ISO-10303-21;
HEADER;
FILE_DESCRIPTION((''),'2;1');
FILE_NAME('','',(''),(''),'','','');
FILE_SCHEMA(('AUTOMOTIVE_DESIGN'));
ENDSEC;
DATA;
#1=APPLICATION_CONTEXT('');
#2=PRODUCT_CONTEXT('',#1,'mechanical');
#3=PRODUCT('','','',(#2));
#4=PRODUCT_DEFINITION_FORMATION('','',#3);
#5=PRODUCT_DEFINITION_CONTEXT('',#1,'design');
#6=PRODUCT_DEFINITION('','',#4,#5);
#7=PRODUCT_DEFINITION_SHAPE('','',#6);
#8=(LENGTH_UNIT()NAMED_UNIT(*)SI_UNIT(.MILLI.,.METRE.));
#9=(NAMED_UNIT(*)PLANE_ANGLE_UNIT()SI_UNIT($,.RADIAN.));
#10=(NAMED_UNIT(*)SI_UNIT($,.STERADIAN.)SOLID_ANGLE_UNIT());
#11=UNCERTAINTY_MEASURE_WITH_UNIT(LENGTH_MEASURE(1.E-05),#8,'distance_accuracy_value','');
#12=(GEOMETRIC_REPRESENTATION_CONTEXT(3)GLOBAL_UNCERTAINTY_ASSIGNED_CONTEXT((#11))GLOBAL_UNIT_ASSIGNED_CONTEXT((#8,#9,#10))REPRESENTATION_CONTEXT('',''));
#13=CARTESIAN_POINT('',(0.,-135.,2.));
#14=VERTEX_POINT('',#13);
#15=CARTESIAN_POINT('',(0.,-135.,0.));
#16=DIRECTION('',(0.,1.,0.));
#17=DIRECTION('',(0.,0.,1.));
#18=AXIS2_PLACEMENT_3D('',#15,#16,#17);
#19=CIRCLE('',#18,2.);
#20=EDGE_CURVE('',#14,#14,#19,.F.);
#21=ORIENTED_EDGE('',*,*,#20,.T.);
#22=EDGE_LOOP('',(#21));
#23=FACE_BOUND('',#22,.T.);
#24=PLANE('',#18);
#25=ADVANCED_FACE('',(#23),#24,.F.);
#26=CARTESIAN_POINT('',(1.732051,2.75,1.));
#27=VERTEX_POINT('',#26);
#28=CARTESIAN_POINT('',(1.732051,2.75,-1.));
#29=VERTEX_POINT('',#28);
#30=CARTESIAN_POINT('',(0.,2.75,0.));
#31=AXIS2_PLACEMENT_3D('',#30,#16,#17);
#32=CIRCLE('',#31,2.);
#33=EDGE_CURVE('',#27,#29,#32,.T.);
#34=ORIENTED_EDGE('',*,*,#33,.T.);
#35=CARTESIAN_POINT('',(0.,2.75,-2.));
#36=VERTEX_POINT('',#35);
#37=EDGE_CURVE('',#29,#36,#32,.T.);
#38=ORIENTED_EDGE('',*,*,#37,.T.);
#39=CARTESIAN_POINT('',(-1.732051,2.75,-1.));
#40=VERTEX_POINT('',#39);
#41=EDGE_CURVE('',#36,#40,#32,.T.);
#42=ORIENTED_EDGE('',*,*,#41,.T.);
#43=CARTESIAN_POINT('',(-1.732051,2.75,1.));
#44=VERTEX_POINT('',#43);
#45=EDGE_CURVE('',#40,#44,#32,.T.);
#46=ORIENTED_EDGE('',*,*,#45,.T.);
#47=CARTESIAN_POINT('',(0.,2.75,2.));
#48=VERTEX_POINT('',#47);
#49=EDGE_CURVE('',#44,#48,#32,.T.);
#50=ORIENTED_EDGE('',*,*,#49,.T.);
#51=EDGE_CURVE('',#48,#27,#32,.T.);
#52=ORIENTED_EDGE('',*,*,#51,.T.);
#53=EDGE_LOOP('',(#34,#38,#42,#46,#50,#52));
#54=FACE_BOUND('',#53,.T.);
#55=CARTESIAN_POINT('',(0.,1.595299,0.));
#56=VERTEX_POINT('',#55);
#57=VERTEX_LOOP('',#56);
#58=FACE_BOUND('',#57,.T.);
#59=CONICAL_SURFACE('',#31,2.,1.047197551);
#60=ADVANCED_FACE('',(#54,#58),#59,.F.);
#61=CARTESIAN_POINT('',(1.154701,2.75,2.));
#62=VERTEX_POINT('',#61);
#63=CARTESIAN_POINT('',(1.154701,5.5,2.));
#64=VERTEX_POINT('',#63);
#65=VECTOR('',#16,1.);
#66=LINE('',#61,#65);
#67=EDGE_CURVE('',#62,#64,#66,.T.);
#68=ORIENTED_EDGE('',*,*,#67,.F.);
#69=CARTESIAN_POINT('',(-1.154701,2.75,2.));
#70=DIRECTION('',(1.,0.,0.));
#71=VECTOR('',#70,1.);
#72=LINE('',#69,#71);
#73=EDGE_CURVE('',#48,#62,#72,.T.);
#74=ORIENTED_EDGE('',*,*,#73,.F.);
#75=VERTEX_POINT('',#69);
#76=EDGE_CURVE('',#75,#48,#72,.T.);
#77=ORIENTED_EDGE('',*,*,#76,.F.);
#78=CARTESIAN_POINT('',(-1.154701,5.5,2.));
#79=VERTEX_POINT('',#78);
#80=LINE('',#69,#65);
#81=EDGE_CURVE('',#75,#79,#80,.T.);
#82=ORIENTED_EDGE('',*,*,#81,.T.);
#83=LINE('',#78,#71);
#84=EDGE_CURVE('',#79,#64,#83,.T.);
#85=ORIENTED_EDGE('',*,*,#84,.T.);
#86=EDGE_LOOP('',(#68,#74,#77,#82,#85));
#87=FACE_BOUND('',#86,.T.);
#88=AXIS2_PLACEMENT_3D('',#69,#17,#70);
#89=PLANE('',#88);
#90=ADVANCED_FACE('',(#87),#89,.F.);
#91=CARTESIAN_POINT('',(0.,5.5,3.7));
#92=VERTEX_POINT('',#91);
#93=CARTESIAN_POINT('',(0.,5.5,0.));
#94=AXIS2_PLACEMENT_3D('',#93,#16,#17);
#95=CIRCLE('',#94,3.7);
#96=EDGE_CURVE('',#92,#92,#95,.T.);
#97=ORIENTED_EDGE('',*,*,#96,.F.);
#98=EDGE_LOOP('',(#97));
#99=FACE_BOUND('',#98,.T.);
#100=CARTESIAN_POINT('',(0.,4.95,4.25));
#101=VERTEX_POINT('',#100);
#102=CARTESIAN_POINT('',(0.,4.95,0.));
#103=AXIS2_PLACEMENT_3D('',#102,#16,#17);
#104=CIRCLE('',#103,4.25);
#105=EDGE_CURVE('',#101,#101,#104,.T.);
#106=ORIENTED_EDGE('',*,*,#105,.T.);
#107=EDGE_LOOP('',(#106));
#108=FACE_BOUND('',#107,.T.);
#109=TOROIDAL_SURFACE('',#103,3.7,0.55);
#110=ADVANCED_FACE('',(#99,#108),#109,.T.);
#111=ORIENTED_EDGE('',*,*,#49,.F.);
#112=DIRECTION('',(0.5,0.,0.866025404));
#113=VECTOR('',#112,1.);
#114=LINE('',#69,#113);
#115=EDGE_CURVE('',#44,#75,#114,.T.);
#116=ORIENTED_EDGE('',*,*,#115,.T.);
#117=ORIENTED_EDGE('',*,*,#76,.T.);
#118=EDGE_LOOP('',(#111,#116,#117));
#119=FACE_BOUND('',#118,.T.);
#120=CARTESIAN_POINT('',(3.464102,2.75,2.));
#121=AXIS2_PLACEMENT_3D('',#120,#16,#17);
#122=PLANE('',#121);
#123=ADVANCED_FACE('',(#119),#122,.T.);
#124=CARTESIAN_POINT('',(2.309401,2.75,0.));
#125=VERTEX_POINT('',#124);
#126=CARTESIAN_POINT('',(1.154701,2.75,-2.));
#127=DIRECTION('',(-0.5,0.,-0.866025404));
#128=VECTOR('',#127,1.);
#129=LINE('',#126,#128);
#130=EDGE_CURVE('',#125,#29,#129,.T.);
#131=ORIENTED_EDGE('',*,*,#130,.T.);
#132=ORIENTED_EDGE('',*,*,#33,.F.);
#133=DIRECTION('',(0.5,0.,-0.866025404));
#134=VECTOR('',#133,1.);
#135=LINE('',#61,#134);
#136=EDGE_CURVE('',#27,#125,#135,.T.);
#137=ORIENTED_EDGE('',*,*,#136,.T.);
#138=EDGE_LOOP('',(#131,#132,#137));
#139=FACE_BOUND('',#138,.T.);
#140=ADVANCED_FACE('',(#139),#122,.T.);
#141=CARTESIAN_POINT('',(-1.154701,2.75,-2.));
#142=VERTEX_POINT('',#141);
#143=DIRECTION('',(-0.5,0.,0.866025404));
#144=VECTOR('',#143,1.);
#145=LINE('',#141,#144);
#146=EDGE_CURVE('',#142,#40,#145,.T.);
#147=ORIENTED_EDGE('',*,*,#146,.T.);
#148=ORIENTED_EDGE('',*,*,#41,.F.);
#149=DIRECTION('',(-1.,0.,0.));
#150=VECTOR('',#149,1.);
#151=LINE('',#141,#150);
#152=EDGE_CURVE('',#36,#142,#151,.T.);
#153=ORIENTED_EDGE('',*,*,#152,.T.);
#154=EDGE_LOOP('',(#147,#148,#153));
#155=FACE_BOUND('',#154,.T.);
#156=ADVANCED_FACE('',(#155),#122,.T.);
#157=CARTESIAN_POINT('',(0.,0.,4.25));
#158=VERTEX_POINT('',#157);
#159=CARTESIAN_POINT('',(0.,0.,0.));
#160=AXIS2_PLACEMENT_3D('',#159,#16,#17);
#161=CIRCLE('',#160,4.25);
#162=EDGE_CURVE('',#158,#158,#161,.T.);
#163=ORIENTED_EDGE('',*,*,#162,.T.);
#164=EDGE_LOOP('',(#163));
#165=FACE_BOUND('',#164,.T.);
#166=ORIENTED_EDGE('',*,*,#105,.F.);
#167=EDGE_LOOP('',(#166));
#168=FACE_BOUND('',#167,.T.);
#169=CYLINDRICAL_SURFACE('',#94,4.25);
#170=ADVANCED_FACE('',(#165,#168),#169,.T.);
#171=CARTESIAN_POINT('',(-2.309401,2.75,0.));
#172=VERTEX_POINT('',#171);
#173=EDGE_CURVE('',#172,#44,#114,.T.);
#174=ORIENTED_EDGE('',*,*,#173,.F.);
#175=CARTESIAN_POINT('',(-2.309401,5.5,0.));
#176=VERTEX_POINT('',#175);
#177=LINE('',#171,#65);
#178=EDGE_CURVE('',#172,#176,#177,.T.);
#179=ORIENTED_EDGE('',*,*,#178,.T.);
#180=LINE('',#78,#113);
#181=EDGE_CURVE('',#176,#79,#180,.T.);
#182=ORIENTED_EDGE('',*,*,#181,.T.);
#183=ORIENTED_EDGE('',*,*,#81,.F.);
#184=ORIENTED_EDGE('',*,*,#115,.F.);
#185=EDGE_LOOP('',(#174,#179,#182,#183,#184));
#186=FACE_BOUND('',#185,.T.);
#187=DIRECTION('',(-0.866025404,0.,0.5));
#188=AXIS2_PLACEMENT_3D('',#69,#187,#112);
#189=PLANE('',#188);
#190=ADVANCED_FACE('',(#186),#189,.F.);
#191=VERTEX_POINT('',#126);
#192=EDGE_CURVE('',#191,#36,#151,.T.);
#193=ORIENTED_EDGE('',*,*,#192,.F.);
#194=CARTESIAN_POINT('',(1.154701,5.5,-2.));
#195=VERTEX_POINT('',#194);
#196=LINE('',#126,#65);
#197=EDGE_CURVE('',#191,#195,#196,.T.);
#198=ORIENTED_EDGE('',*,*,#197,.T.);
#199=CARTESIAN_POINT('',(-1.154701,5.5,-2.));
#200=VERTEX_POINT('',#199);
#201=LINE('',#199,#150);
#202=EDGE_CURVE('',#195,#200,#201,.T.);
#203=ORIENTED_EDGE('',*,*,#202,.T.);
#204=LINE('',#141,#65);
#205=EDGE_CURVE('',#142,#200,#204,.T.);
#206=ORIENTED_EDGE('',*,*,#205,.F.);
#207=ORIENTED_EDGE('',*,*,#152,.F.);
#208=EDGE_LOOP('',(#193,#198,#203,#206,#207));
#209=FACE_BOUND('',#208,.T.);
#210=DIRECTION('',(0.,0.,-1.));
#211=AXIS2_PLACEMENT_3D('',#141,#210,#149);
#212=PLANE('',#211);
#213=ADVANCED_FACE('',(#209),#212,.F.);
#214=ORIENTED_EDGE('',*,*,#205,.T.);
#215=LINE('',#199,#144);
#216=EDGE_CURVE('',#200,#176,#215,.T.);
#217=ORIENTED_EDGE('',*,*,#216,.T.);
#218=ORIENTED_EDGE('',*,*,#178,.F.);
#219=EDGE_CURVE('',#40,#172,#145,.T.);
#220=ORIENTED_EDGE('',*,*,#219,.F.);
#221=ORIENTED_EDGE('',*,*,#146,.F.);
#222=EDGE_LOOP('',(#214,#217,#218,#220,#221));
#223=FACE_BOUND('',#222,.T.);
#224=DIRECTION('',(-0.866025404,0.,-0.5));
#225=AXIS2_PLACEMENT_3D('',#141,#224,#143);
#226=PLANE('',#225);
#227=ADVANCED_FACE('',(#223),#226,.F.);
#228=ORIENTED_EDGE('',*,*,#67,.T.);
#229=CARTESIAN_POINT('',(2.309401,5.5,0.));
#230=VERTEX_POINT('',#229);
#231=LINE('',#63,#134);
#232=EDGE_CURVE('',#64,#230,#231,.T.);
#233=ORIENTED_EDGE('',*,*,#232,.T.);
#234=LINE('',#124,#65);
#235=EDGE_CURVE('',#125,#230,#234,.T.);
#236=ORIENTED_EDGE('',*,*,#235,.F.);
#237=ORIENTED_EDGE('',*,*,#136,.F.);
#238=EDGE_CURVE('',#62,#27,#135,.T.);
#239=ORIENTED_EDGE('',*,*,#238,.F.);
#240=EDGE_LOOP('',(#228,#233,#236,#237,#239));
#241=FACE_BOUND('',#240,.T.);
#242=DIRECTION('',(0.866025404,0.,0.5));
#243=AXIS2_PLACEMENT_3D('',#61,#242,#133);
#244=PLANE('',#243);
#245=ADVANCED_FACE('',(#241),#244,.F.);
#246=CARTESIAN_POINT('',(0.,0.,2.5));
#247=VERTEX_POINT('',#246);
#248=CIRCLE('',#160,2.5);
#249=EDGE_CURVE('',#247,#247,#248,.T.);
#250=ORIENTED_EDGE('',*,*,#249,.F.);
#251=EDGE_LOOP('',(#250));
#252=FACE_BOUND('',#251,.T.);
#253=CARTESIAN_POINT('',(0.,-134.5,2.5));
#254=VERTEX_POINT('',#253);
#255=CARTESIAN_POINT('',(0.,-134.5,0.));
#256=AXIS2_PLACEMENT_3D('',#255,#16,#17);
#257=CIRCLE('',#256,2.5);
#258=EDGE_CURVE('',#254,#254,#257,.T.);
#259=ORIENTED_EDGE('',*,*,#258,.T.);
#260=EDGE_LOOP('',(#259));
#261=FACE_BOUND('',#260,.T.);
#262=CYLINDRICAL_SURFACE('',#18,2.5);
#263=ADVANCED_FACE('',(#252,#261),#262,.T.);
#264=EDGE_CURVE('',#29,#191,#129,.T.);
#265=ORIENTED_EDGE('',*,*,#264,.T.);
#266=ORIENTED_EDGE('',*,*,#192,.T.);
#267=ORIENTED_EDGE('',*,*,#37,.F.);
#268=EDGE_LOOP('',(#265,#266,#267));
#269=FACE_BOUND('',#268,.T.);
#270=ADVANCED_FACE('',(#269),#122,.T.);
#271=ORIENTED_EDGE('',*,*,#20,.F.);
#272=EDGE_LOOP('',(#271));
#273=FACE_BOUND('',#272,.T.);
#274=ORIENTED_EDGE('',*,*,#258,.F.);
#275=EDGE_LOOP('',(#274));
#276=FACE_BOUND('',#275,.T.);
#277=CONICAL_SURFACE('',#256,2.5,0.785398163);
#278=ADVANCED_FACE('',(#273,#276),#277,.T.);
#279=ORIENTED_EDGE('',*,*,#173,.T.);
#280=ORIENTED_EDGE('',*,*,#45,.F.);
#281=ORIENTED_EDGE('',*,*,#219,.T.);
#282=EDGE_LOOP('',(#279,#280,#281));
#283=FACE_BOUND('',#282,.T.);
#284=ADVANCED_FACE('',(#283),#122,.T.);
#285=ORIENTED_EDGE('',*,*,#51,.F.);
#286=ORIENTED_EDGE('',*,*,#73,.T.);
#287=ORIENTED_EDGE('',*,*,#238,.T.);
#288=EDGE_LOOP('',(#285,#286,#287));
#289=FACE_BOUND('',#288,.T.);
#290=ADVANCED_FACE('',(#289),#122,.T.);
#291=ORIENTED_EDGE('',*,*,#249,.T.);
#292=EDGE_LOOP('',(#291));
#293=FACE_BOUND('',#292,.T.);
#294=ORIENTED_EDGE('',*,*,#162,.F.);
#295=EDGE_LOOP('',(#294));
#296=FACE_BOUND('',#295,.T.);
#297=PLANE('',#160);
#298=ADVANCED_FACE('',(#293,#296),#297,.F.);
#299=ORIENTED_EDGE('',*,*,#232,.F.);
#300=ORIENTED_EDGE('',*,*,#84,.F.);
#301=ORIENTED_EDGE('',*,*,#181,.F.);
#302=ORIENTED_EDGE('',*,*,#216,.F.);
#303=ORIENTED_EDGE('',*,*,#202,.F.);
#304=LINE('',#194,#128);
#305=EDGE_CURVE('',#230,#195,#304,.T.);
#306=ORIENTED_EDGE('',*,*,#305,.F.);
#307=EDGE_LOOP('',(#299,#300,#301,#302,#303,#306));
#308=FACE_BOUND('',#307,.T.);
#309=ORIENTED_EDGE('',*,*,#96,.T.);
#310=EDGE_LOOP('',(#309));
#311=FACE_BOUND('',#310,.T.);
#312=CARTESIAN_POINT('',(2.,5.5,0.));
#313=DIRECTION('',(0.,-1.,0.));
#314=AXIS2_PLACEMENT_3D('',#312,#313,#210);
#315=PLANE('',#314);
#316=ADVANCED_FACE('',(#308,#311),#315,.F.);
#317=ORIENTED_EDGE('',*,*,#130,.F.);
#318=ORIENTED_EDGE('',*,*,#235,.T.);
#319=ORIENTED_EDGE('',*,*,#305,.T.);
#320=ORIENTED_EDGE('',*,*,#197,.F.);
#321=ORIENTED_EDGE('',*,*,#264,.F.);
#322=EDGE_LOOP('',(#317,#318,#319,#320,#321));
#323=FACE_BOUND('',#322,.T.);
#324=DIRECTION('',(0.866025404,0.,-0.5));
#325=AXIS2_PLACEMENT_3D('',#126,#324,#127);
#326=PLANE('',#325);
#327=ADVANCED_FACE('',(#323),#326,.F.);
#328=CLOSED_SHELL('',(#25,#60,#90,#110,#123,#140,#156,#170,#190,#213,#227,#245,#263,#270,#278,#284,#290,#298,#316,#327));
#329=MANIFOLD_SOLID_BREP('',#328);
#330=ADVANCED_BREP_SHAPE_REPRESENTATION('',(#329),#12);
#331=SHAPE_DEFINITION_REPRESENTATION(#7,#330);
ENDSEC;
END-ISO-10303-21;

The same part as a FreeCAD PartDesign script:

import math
import FreeCAD as App
import Part
import Sketcher
Q = App.Units.Quantity


def edges_at(feature, points):
    """Names of the edges that pass closest to the given points."""
    edges = feature.Shape.Edges
    near = lambda p: min(range(len(edges)), key=lambda i: edges[i].distToShape(Part.Vertex(*p))[0])
    return sorted({f"Edge{near(p) + 1}" for p in points})


def add_polygon(sketch, points):
    """Adds a closed chain of lines whose ends are joined by coincident constraints."""
    first, n = sketch.GeometryCount, len(points)
    for a, b in zip(points, points[1:] + points[:1]):
        sketch.addGeometry(Part.LineSegment(App.Vector(*a, 0), App.Vector(*b, 0)), False)
    for i in range(n):
        sketch.addConstraint(Sketcher.Constraint("Coincident", first + i, 2, first + (i + 1) % n, 1))

doc = App.newDocument("Part")
body = doc.addObject("PartDesign::Body", "Body")

sketch1 = body.newObject("Sketcher::SketchObject", "Sketch")
sketch1.AttachmentSupport = (doc.getObject("XZ_Plane"), [""])
sketch1.MapMode = "FlatFace"
sketch1.addGeometry(Part.Circle(App.Vector(0, 0, 0), App.Vector(0, 0, 1), 2.5), False)
sketch1.addConstraint([
    Sketcher.Constraint("Coincident", 0, 3, -1, 1),
    Sketcher.Constraint("Diameter", 0, 5.0),
])
pad1 = body.newObject("PartDesign::Pad", "Pad")
pad1.Profile = sketch1
pad1.Length = 135
doc.recompute()

chamfer = body.newObject("PartDesign::Chamfer", "Chamfer")
chamfer.Base = (pad1, edges_at(pad1, [(0, -135, -2.5)]))
chamfer.Size = 0.5

sketch2 = body.newObject("Sketcher::SketchObject", "Sketch001")
sketch2.AttachmentSupport = (doc.getObject("XY_Plane"), [""])
sketch2.MapMode = "FlatFace"
sketch2.addGeometry([
    Part.LineSegment(App.Vector(2, 5.5, 0), App.Vector(2, 2.8, 0)),
    Part.LineSegment(App.Vector(2, 2.8, 0), App.Vector(0, 1.6, 0)),
    Part.LineSegment(App.Vector(0, 1.6, 0), App.Vector(0, 0, 0)),
    Part.LineSegment(App.Vector(0, 0, 0), App.Vector(4.2, 0, 0)),
    Part.LineSegment(App.Vector(4.2, 0, 0), App.Vector(4.2, 5, 0)),
    Part.ArcOfCircle(Part.Circle(App.Vector(3.7, 5, 0), App.Vector(0, 0, 1), 0.5), math.radians(0), math.radians(90)),
    Part.LineSegment(App.Vector(3.7, 5.5, 0), App.Vector(2, 5.5, 0)),
], False)
sketch2.addConstraint([
    Sketcher.Constraint("Coincident", 0, 2, 1, 1),
    Sketcher.Constraint("Coincident", 1, 2, 2, 1),
    Sketcher.Constraint("Coincident", 2, 2, 3, 1),
    Sketcher.Constraint("Coincident", 3, 2, 4, 1),
    Sketcher.Constraint("Tangent", 4, 2, 5, 1),
    Sketcher.Constraint("Tangent", 5, 2, 6, 1),
    Sketcher.Constraint("Coincident", 6, 2, 0, 1),
    Sketcher.Constraint("Vertical", 0),
    Sketcher.Constraint("Vertical", 2),
    Sketcher.Constraint("Horizontal", 3),
    Sketcher.Constraint("Vertical", 4),
    Sketcher.Constraint("Horizontal", 6),
    Sketcher.Constraint("Coincident", 2, 2, -1, 1),
    Sketcher.Constraint("Angle", 1, Q("-150 deg")),
    Sketcher.Constraint("Radius", 5, 0.55),
    Sketcher.Constraint("DistanceX", 6, 2, 6, 1, 1.7),
    Sketcher.Constraint("DistanceX", -1, 1, 0, 2, 2.0),
    Sketcher.Constraint("DistanceY", 0, 2, 0, 1, 2.75),
    Sketcher.Constraint("DistanceY", 4, 1, 4, 2, 4.95),
])
revolution = body.newObject("PartDesign::Revolution", "Revolution")
revolution.Profile = sketch2
revolution.ReferenceAxis = (sketch2, ["V_Axis"])
revolution.Angle = 360

sketch3 = body.newObject("Sketcher::SketchObject", "Sketch002")
sketch3.AttachmentSupport = (doc.getObject("XZ_Plane"), [""])
sketch3.MapMode = "FlatFace"
sketch3.AttachmentOffset = App.Placement(App.Vector(0, 0, -5.5), App.Rotation())
add_polygon(sketch3, [(-1.2, 2), (1.2, 2), (2.3, 0), (1.2, -2), (-1.2, -2), (-2.3, 0)])
sketch3.addConstraint([
    Sketcher.Constraint("Horizontal", 0),
    Sketcher.Constraint("Horizontal", 3),
    Sketcher.Constraint("Symmetric", 0, 2, 3, 2, -1, 1),
    Sketcher.Constraint("Symmetric", 1, 2, 4, 2, -1, 1),
    Sketcher.Constraint("PointOnObject", 1, 2, -1),
    Sketcher.Constraint("Parallel", 2, 5),
    Sketcher.Constraint("Vertical", 0, 2, 2, 2),
    Sketcher.Constraint("Angle", 1, Q("-60 deg")),
    Sketcher.Constraint("DistanceY", -1, 1, 0, 2, 2.0),
    Sketcher.Constraint("DistanceX", 0, 1, 0, 2, 2.309401),
])
pocket1 = body.newObject("PartDesign::Pocket", "Pocket")
pocket1.Profile = sketch3
pocket1.Length = 2.75
pocket1.Reversed = True

doc.recompute()
